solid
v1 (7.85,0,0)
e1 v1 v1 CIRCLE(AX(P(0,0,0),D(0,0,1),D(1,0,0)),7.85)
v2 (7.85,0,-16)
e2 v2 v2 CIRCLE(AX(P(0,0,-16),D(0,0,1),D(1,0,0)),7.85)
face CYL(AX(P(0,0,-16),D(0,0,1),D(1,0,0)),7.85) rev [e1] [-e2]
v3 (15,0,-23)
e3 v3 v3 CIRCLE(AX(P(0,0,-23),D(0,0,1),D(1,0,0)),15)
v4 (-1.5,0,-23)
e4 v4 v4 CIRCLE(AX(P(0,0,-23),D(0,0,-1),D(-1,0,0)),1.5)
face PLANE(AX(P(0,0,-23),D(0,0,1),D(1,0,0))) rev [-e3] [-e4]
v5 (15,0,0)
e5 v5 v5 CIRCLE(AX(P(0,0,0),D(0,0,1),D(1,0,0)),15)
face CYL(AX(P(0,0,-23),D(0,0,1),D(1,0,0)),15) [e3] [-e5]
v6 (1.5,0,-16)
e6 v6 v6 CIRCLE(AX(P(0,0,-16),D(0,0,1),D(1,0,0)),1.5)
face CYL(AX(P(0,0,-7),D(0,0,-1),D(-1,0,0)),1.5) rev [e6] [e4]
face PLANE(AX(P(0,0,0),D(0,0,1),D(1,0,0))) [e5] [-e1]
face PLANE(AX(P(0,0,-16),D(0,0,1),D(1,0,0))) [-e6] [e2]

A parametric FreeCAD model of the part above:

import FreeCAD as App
import Part
import Sketcher
from FreeCAD import Vector

doc = App.newDocument("Part")
body = doc.addObject("PartDesign::Body", "Body")

# Sketch on XY plane
sketch1 = body.newObject("Sketcher::SketchObject", "Sketch")
sketch1.AttachmentSupport = (doc.getObject("XY_Plane"), [""])
sketch1.MapMode = "FlatFace"
sketch1.addGeometry(Part.Circle(Vector(0, 0, 0), Vector(0, 0, 1), 15), False)
sketch1.addConstraint([
    Sketcher.Constraint("Coincident", 0, 3, -1, 1),
    Sketcher.Constraint("Diameter", 0, 30.0),
])
pad1 = body.newObject("PartDesign::Pad", "Pad")
pad1.Profile = sketch1
pad1.Length = 23
pad1.Reversed = True

# Sketch on XY plane
sketch2 = body.newObject("Sketcher::SketchObject", "Sketch001")
sketch2.AttachmentSupport = (doc.getObject("XY_Plane"), [""])
sketch2.MapMode = "FlatFace"
sketch2.addGeometry(Part.Circle(Vector(0, 0, 0), Vector(0, 0, 1), 8), False)
sketch2.addConstraint([
    Sketcher.Constraint("Coincident", 0, 3, -1, 1),
    Sketcher.Constraint("Diameter", 0, 15.7),
])
pocket1 = body.newObject("PartDesign::Pocket", "Pocket")
pocket1.Profile = sketch2
pocket1.Length = 16

# Sketch on XY plane
sketch3 = body.newObject("Sketcher::SketchObject", "Sketch002")
sketch3.AttachmentSupport = (doc.getObject("XY_Plane"), [""])
sketch3.MapMode = "FlatFace"
sketch3.AttachmentOffset = App.Placement(Vector(0, 0, -23), App.Rotation())
sketch3.addGeometry(Part.Circle(Vector(0, 0, 0), Vector(0, 0, 1), 1.5), False)
sketch3.addConstraint([
    Sketcher.Constraint("Coincident", 0, 3, -1, 1),
    Sketcher.Constraint("Diameter", 0, 3.0),
])
pocket2 = body.newObject("PartDesign::Pocket", "Pocket001")
pocket2.Profile = sketch3
pocket2.Length = 16
pocket2.Reversed = True

doc.recompute()
